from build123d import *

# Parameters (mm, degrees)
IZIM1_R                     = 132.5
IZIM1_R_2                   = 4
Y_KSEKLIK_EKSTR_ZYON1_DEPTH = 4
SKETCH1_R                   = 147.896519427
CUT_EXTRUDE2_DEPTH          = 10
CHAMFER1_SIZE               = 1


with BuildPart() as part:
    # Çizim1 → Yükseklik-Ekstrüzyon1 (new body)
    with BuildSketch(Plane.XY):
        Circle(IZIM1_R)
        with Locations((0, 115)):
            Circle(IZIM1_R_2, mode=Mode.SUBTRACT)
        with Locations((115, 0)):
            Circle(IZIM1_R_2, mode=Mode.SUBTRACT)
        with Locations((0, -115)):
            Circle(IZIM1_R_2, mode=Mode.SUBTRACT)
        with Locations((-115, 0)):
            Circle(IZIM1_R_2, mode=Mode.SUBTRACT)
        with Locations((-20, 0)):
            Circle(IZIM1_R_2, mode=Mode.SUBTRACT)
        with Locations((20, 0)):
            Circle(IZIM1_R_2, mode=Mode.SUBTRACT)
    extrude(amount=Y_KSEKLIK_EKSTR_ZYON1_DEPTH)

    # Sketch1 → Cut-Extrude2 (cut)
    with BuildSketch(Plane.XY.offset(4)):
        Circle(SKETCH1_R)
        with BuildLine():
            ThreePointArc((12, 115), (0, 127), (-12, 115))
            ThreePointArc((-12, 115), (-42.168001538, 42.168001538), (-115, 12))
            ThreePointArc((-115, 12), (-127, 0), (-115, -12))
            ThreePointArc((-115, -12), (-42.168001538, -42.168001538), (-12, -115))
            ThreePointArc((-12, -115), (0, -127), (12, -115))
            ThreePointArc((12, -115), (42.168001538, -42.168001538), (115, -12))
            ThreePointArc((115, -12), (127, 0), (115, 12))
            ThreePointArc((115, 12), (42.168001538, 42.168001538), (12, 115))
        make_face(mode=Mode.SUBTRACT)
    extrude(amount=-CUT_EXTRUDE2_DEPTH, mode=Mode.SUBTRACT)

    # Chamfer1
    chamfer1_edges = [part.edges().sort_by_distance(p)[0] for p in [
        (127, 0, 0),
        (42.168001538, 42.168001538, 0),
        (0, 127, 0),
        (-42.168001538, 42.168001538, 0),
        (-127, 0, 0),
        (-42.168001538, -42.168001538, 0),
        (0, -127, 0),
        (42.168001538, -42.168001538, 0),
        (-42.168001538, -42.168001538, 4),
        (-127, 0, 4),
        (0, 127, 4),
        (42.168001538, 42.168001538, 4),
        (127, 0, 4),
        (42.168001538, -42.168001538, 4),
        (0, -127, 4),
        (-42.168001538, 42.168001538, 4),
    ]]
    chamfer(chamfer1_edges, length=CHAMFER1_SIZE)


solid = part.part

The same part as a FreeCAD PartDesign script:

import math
import FreeCAD as App
import Part
import Sketcher

V = App.Vector
Q = App.Units.Quantity


def edges_at(feature, points):
    """Names of the edges that pass closest to the given points."""
    edges = feature.Shape.Edges
    near = lambda p: min(range(len(edges)), key=lambda i: edges[i].distToShape(Part.Vertex(*p))[0])
    return sorted({f"Edge{near(p) + 1}" for p in points})

doc = App.newDocument("Part")
body = doc.addObject("PartDesign::Body", "Body")

# Sketch on XY plane
sketch1 = body.newObject("Sketcher::SketchObject", "Sketch")
sketch1.AttachmentSupport = (doc.getObject("XY_Plane"), [""])
sketch1.MapMode = "FlatFace"
sketch1.addGeometry(Part.Circle(V(0, 0, 0), V(0, 0, 1), 132.5), False)
sketch1.addGeometry(Part.Circle(V(0, -115, 0), V(0, 0, 1), 4), False)
sketch1.addGeometry(Part.Circle(V(-115, 0, 0), V(0, 0, 1), 4), False)
sketch1.addGeometry(Part.Circle(V(-20, 0, 0), V(0, 0, 1), 4), False)
sketch1.addGeometry(Part.Circle(V(20, 0, 0), V(0, 0, 1), 4), False)
sketch1.addGeometry(Part.Circle(V(115, 0, 0), V(0, 0, 1), 4), False)
sketch1.addGeometry(Part.Circle(V(0, 115, 0), V(0, 0, 1), 4), False)
sketch1.addConstraint(Sketcher.Constraint("Coincident", 0, 3, -1, 1))
sketch1.addConstraint(Sketcher.Constraint("Equal", 1, 2))
sketch1.addConstraint(Sketcher.Constraint("Equal", 2, 3))
sketch1.addConstraint(Sketcher.Constraint("Equal", 3, 4))
sketch1.addConstraint(Sketcher.Constraint("Equal", 4, 5))
sketch1.addConstraint(Sketcher.Constraint("Equal", 5, 6))
sketch1.addConstraint(Sketcher.Constraint("Symmetric", 3, 3, 4, 3, -1, 1))
sketch1.addConstraint(Sketcher.Constraint("Symmetric", 2, 3, 5, 3, -1, 1))
sketch1.addConstraint(Sketcher.Constraint("Symmetric", 1, 3, 6, 3, -1, 1))
sketch1.addConstraint(Sketcher.Constraint("PointOnObject", 1, 3, -2))
sketch1.addConstraint(Sketcher.Constraint("PointOnObject", 2, 3, -1))
sketch1.addConstraint(Sketcher.Constraint("PointOnObject", 3, 3, -1))
sketch1.addConstraint(Sketcher.Constraint("Diameter", 0, Q("265 mm")))
sketch1.addConstraint(Sketcher.Constraint("Diameter", 1, Q("8 mm")))
sketch1.addConstraint(Sketcher.Constraint("DistanceY", 1, 3, -1, 1, Q("115 mm")))
sketch1.addConstraint(Sketcher.Constraint("DistanceX", 2, 3, -1, 1, Q("115 mm")))
sketch1.addConstraint(Sketcher.Constraint("DistanceX", 3, 3, -1, 1, Q("20 mm")))
pad1 = body.newObject("PartDesign::Pad", "Pad")
pad1.Profile = sketch1
pad1.Length = 4

# Sketch on XY plane
sketch2 = body.newObject("Sketcher::SketchObject", "Sketch001")
sketch2.AttachmentSupport = (doc.getObject("XY_Plane"), [""])
sketch2.MapMode = "FlatFace"
sketch2.AttachmentOffset = App.Placement(V(0, 0, 4), App.Rotation())
sketch2.addGeometry(Part.Circle(V(0, 0, 0), V(0, 0, 1), 147.896519), False)
sketch2.addGeometry(Part.ArcOfCircle(Part.Circle(V(0, 115, 0), V(0, 0, 1), 12), math.radians(0), math.radians(180)), False)
sketch2.addGeometry(Part.ArcOfCircle(Part.Circle(V(115, 115, 0), V(0, 0, 1), 103), math.radians(-180), math.radians(-90)), False)
sketch2.addGeometry(Part.ArcOfCircle(Part.Circle(V(115, 0, 0), V(0, 0, 1), 12), math.radians(-90), math.radians(90)), False)
sketch2.addGeometry(Part.ArcOfCircle(Part.Circle(V(115, -115, 0), V(0, 0, 1), 103), math.radians(90), math.radians(180)), False)
sketch2.addGeometry(Part.ArcOfCircle(Part.Circle(V(0, -115, 0), V(0, 0, 1), 12), math.radians(180), math.radians(360)), False)
sketch2.addGeometry(Part.ArcOfCircle(Part.Circle(V(-115, -115, 0), V(0, 0, 1), 103), math.radians(0), math.radians(90)), False)
sketch2.addGeometry(Part.ArcOfCircle(Part.Circle(V(-115, 0, 0), V(0, 0, 1), 12), math.radians(90), math.radians(270)), False)
sketch2.addGeometry(Part.ArcOfCircle(Part.Circle(V(-115, 115, 0), V(0, 0, 1), 103), math.radians(-90), math.radians(0)), False)
sketch2.addConstraint(Sketcher.Constraint("Tangent", 1, 1, 2, 1))
sketch2.addConstraint(Sketcher.Constraint("Tangent", 2, 2, 3, 2))
sketch2.addConstraint(Sketcher.Constraint("Tangent", 3, 1, 4, 1))
sketch2.addConstraint(Sketcher.Constraint("Tangent", 4, 2, 5, 2))
sketch2.addConstraint(Sketcher.Constraint("Tangent", 5, 1, 6, 1))
sketch2.addConstraint(Sketcher.Constraint("Tangent", 6, 2, 7, 2))
sketch2.addConstraint(Sketcher.Constraint("Tangent", 7, 1, 8, 1))
sketch2.addConstraint(Sketcher.Constraint("Tangent", 8, 2, 1, 2))
sketch2.addConstraint(Sketcher.Constraint("Coincident", 0, 3, -1, 1))
sketch2.addConstraint(Sketcher.Constraint("Equal", 1, 3))
sketch2.addConstraint(Sketcher.Constraint("Equal", 2, 4))
sketch2.addConstraint(Sketcher.Constraint("Equal", 3, 5))
sketch2.addConstraint(Sketcher.Constraint("Equal", 4, 6))
sketch2.addConstraint(Sketcher.Constraint("Equal", 5, 7))
sketch2.addConstraint(Sketcher.Constraint("Equal", 6, 8))
sketch2.addConstraint(Sketcher.Constraint("Symmetric", 1, 3, 5, 3, -1, 1))
sketch2.addConstraint(Sketcher.Constraint("Symmetric", 3, 3, 7, 3, -1, 1))
sketch2.addConstraint(Sketcher.Constraint("Symmetric", 4, 3, 6, 3, -2))
sketch2.addConstraint(Sketcher.Constraint("Horizontal", 1, 3, 2, 3))
sketch2.addConstraint(Sketcher.Constraint("Vertical", 2, 3, 3, 3))
sketch2.addConstraint(Sketcher.Constraint("Radius", 1, Q("12 mm")))
sketch2.addConstraint(Sketcher.Constraint("Radius", 2, Q("103 mm")))
sketch2.addConstraint(Sketcher.Constraint("Diameter", 0, Q("295.793039 mm")))
pocket1 = body.newObject("PartDesign::Pocket", "Pocket")
pocket1.Profile = sketch2
pocket1.Length = 10
doc.recompute()

chamfer = body.newObject("PartDesign::Chamfer", "Chamfer")
chamfer.Base = (pocket1, edges_at(pocket1, [
    (127, 0, 0),
    (42.168, 42.168, 0),
    (0, 127, 0),
    (-42.168, 42.168, 0),
    (-127, 0, 0),
    (-42.168, -42.168, 0),
    (0, -127, 0),
    (42.168, -42.168, 0),
    (-42.168, -42.168, 4),
    (-127, 0, 4),
    (0, 127, 4),
    (42.168, 42.168, 4),
    (127, 0, 4),
    (42.168, -42.168, 4),
    (0, -127, 4),
    (-42.168, 42.168, 4),
]))
chamfer.Size = 1

doc.recompute()
